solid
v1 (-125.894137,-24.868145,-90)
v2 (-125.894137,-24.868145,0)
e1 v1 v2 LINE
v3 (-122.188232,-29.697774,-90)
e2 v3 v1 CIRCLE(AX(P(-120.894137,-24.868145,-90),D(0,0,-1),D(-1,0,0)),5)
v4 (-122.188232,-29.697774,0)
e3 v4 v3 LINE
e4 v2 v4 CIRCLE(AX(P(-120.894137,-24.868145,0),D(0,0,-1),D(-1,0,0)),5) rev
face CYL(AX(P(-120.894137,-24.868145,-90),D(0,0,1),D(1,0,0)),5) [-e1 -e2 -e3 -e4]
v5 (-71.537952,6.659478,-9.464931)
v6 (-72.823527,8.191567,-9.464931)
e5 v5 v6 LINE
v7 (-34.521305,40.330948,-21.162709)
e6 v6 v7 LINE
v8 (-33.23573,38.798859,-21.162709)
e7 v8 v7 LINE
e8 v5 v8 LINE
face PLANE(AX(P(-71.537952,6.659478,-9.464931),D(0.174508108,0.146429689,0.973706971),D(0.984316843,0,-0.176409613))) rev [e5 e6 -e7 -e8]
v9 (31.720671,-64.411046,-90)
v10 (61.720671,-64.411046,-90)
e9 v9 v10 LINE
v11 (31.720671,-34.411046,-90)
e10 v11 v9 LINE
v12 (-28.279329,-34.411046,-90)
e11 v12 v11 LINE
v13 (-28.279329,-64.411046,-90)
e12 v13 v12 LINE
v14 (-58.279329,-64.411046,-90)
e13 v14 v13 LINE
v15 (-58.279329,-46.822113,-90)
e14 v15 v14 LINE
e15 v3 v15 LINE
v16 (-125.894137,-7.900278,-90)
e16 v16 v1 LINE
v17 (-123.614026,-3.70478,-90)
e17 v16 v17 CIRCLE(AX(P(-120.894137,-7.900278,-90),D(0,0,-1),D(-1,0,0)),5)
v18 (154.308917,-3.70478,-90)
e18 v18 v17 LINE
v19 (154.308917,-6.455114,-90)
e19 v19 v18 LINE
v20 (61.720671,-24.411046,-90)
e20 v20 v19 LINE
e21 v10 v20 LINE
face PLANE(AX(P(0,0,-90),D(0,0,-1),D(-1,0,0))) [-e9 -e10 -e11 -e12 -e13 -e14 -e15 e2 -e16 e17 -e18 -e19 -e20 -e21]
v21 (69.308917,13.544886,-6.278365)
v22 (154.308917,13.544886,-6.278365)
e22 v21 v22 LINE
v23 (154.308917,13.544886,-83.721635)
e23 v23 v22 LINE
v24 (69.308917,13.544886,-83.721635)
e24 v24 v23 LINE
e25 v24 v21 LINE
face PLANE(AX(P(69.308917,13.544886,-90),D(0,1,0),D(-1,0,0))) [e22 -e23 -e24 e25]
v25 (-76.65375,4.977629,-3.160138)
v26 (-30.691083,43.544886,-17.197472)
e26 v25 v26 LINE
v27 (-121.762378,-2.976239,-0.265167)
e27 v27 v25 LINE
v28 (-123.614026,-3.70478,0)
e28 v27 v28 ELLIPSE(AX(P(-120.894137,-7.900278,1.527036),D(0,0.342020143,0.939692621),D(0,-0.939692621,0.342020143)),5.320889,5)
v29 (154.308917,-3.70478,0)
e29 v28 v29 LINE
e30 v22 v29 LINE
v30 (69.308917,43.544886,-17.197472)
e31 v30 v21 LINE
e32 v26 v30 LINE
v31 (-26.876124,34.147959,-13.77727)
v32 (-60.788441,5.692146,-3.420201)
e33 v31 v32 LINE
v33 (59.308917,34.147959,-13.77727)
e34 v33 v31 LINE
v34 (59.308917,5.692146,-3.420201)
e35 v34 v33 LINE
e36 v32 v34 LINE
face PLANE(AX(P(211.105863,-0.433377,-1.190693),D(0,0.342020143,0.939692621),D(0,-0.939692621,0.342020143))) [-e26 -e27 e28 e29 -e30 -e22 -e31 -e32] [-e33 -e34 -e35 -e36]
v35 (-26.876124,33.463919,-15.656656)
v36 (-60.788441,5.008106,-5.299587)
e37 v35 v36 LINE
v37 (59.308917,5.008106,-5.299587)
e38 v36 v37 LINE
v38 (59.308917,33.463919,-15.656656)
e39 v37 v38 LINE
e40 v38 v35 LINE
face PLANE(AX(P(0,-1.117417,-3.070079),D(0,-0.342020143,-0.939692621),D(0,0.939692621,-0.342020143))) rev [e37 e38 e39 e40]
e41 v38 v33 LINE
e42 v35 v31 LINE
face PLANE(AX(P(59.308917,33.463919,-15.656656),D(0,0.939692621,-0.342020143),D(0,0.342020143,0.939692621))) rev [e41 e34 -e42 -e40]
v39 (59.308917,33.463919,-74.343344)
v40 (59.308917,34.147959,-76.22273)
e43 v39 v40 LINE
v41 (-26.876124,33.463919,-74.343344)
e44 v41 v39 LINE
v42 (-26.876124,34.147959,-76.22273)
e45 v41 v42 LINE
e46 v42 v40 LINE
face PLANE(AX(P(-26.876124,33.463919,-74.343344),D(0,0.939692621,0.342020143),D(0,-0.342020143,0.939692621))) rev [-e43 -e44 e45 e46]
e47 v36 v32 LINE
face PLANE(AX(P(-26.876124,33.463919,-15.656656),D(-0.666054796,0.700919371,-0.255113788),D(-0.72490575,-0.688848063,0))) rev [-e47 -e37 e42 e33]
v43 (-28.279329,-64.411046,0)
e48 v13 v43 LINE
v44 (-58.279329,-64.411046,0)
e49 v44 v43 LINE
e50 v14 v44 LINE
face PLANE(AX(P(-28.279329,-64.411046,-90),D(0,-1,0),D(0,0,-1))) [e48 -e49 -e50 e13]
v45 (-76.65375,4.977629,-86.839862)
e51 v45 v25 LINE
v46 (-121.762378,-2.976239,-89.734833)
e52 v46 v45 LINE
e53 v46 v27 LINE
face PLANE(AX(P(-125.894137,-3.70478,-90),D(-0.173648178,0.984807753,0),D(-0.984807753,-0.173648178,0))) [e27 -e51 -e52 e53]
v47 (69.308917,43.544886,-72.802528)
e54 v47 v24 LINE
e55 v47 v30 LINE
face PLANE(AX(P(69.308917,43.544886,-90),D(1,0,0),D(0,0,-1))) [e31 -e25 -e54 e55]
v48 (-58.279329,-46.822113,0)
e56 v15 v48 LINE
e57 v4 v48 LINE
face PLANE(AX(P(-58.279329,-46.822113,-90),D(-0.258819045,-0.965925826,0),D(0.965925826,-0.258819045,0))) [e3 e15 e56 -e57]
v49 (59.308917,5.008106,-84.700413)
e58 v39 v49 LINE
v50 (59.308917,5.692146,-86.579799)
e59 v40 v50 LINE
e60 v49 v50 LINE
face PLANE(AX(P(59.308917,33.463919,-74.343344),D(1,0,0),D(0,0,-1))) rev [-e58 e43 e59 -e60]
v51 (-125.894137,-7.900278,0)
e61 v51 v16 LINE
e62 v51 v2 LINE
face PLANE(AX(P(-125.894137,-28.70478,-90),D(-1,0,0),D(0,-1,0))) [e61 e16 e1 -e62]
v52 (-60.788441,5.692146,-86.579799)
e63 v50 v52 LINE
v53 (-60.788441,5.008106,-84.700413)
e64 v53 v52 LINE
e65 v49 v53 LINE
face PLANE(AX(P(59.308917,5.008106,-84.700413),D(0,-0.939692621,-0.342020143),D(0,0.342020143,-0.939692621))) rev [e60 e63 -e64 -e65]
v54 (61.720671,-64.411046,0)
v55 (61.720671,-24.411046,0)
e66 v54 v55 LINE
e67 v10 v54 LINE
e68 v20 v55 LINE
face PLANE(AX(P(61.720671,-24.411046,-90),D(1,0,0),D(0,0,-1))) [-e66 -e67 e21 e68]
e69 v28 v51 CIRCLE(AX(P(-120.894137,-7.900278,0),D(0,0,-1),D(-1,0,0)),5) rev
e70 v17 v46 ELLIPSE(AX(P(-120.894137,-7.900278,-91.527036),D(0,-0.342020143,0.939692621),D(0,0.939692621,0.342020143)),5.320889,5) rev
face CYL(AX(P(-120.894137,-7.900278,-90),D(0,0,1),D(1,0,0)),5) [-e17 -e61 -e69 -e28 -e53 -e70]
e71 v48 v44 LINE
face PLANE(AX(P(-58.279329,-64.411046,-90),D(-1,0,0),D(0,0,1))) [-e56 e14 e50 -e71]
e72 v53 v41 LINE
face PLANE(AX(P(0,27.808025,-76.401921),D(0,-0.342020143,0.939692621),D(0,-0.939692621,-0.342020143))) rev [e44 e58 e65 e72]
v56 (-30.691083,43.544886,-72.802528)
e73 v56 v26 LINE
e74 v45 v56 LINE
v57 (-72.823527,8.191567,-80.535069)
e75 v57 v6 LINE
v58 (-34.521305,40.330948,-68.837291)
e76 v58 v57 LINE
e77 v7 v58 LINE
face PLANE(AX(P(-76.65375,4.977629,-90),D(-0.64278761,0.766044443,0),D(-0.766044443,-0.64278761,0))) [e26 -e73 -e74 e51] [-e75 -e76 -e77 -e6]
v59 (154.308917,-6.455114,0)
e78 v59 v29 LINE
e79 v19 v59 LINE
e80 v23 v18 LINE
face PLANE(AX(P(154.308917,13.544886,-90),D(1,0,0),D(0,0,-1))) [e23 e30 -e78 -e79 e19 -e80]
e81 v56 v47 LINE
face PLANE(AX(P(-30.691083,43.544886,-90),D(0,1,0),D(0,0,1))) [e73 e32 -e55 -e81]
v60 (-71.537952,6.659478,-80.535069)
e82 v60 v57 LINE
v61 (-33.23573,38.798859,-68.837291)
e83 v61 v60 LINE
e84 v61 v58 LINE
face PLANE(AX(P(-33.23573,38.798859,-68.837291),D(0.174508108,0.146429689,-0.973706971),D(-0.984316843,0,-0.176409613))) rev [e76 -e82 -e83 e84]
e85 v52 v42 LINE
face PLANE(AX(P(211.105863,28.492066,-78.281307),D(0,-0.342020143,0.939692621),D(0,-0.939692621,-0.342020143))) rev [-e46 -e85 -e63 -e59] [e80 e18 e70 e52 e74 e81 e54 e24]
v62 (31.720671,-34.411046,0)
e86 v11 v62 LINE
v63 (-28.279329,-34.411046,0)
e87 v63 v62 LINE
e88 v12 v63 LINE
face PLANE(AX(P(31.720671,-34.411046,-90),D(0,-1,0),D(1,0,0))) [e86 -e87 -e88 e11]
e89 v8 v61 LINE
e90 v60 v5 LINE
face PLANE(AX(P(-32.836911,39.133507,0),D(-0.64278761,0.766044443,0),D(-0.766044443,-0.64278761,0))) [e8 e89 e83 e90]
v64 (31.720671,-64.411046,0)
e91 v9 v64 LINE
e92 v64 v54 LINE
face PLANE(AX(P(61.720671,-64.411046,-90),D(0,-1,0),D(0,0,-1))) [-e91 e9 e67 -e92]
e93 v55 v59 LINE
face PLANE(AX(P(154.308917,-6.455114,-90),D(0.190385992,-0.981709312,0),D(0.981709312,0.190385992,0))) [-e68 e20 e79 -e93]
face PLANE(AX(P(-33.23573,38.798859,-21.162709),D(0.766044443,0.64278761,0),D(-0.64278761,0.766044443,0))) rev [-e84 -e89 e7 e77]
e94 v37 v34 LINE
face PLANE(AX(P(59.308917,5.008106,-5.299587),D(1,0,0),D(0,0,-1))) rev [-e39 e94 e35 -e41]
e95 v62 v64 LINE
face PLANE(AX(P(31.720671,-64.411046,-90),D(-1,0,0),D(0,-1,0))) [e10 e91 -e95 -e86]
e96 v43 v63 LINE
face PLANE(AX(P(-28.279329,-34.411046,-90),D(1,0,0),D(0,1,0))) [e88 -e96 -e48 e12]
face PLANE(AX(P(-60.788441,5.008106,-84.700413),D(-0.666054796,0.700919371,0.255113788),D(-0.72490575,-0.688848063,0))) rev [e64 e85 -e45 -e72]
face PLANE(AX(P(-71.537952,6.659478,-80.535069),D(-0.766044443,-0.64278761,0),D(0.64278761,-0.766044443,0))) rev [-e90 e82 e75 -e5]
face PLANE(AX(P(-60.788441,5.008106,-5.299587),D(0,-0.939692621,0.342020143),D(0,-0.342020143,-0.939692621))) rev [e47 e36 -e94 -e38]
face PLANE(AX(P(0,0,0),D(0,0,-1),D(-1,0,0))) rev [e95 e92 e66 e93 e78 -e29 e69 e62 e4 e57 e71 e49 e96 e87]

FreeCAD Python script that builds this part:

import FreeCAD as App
import Part
import Sketcher

V = App.Vector
Q = App.Units.Quantity


def edges_at(feature, points):
    """Names of the edges that pass closest to the given points."""
    edges = feature.Shape.Edges
    near = lambda p: min(range(len(edges)), key=lambda i: edges[i].distToShape(Part.Vertex(*p))[0])
    return sorted({f"Edge{near(p) + 1}" for p in points})

doc = App.newDocument("Part")
body = doc.addObject("PartDesign::Body", "Body")

# Sketch on XY plane
sketch1 = body.newObject("Sketcher::SketchObject", "Sketch")
sketch1.AttachmentSupport = (doc.getObject("XY_Plane"), [""])
sketch1.MapMode = "FlatFace"
sketch1.addGeometry([
    Part.LineSegment(V(-126, -4, 0), V(-126, -29, 0)),  # 0
    Part.LineSegment(V(-126, -29, 0), V(-58, -47, 0)),  # 1
    Part.LineSegment(V(-58, -47, 0), V(-58, -64, 0)),  # 2
    Part.LineSegment(V(-58, -64, 0), V(-28, -64, 0)),  # 3
    Part.LineSegment(V(-28, -64, 0), V(-28, -34, 0)),  # 4
    Part.LineSegment(V(-28, -34, 0), V(32, -34, 0)),  # 5
    Part.LineSegment(V(32, -34, 0), V(32, -64, 0)),  # 6
    Part.LineSegment(V(32, -64, 0), V(62, -64, 0)),  # 7
    Part.LineSegment(V(62, -64, 0), V(62, -24, 0)),  # 8
    Part.LineSegment(V(62, -24, 0), V(154, -6, 0)),  # 9
    Part.LineSegment(V(154, -6, 0), V(154, 14, 0)),  # 10
    Part.LineSegment(V(154, 14, 0), V(69, 14, 0)),  # 11
    Part.LineSegment(V(69, 14, 0), V(69, 44, 0)),  # 12
    Part.LineSegment(V(69, 44, 0), V(-31, 44, 0)),  # 13
    Part.LineSegment(V(-31, 44, 0), V(-77, 5, 0)),  # 14
    Part.LineSegment(V(-77, 5, 0), V(-126, -4, 0)),  # 15
], False)
sketch1.addConstraint([
    Sketcher.Constraint("Coincident", 0, 2, 1, 1),
    Sketcher.Constraint("Coincident", 1, 2, 2, 1),
    Sketcher.Constraint("Coincident", 2, 2, 3, 1),
    Sketcher.Constraint("Coincident", 3, 2, 4, 1),
    Sketcher.Constraint("Coincident", 4, 2, 5, 1),
    Sketcher.Constraint("Coincident", 5, 2, 6, 1),
    Sketcher.Constraint("Coincident", 6, 2, 7, 1),
    Sketcher.Constraint("Coincident", 7, 2, 8, 1),
    Sketcher.Constraint("Coincident", 8, 2, 9, 1),
    Sketcher.Constraint("Coincident", 9, 2, 10, 1),
    Sketcher.Constraint("Coincident", 10, 2, 11, 1),
    Sketcher.Constraint("Coincident", 11, 2, 12, 1),
    Sketcher.Constraint("Coincident", 12, 2, 13, 1),
    Sketcher.Constraint("Coincident", 13, 2, 14, 1),
    Sketcher.Constraint("Coincident", 14, 2, 15, 1),
    Sketcher.Constraint("Coincident", 15, 2, 0, 1),
    Sketcher.Constraint("Vertical", 0),
    Sketcher.Constraint("Vertical", 2),
    Sketcher.Constraint("Horizontal", 3),
    Sketcher.Constraint("Vertical", 4),
    Sketcher.Constraint("Horizontal", 5),
    Sketcher.Constraint("Vertical", 6),
    Sketcher.Constraint("Horizontal", 7),
    Sketcher.Constraint("Vertical", 8),
    Sketcher.Constraint("Vertical", 10),
    Sketcher.Constraint("Horizontal", 11),
    Sketcher.Constraint("Vertical", 12),
    Sketcher.Constraint("Horizontal", 13),
    Sketcher.Constraint("Horizontal", 3, 2, 6, 2),
    Sketcher.Constraint("Equal", 3, 7),
    Sketcher.Constraint("Equal", 7, 4),
    Sketcher.Constraint("Equal", 6, 12),
    Sketcher.Constraint("DistanceX", 3, 1, 3, 2, 30.0),
    Sketcher.Constraint("DistanceX", 5, 1, 5, 2, 60.0),
    Sketcher.Constraint("DistanceX", 11, 2, 11, 1, 85.0),
    Sketcher.Constraint("DistanceX", 13, 2, 13, 1, 100.0),
    Sketcher.Constraint("DistanceY", 0, 2, 0, 1, 25.0),
    Sketcher.Constraint("DistanceY", 8, 1, 8, 2, 40.0),
    Sketcher.Constraint("DistanceY", 10, 1, 10, 2, 20.0),
    Sketcher.Constraint("Angle", 1, Q("-15 deg")),
    Sketcher.Constraint("Angle", 14, Q("-140 deg")),
    Sketcher.Constraint("Angle", 15, Q("-170 deg")),
    Sketcher.Constraint("Distance", 1, 70.0),
    Sketcher.Constraint("Distance", 14, 60.0),
    Sketcher.Constraint("Distance", 15, 50.0),
    Sketcher.Constraint("Distance", 9, 94.313302),
    Sketcher.Constraint("DistanceY", 0, 2, -1, 1, 28.70478),
    Sketcher.Constraint("DistanceX", 1, 2, -1, 1, 58.279329),
])
pad1 = body.newObject("PartDesign::Pad", "Pad")
pad1.Profile = sketch1
pad1.Length = 90
pad1.Reversed = True

# Sketch on YZ plane
sketch2 = body.newObject("Sketcher::SketchObject", "Sketch001")
sketch2.AttachmentSupport = (doc.getObject("YZ_Plane"), [""])
sketch2.MapMode = "FlatFace"
sketch2.AttachmentOffset = App.Placement(V(0, 0, -125.894137), App.Rotation())
sketch2.addGeometry([
    Part.LineSegment(V(120, -45, 0), V(-4, 0, 0)),  # 0
    Part.LineSegment(V(-4, 0, 0), V(166, 0, 0)),  # 1
    Part.LineSegment(V(166, 0, 0), V(166, -28, 0)),  # 2
    Part.LineSegment(V(166, -28, 0), V(120, -45, 0)),  # 3
    Part.LineSegment(V(-4, -90, 0), V(120, -45, 0)),  # 4
    Part.LineSegment(V(120, -45, 0), V(166, -62, 0)),  # 5
    Part.LineSegment(V(166, -62, 0), V(166, -90, 0)),  # 6
    Part.LineSegment(V(166, -90, 0), V(-4, -90, 0)),  # 7
], False)
sketch2.addConstraint([
    Sketcher.Constraint("Coincident", 0, 2, 1, 1),
    Sketcher.Constraint("Coincident", 1, 2, 2, 1),
    Sketcher.Constraint("Coincident", 2, 2, 3, 1),
    Sketcher.Constraint("Coincident", 3, 2, 0, 1),
    Sketcher.Constraint("Coincident", 4, 2, 5, 1),
    Sketcher.Constraint("Coincident", 5, 2, 6, 1),
    Sketcher.Constraint("Coincident", 6, 2, 7, 1),
    Sketcher.Constraint("Coincident", 7, 2, 4, 1),
    Sketcher.Constraint("Horizontal", 1),
    Sketcher.Constraint("Vertical", 2),
    Sketcher.Constraint("Vertical", 6),
    Sketcher.Constraint("Horizontal", 7),
    Sketcher.Constraint("Coincident", 4, 2, 3, 2),
    Sketcher.Constraint("PointOnObject", 0, 2, -1),
    Sketcher.Constraint("Parallel", 3, 4),
    Sketcher.Constraint("Parallel", 0, 5),
    Sketcher.Constraint("Vertical", 2, 2, 5, 2),
    Sketcher.Constraint("Vertical", 0, 2, 7, 2),
    Sketcher.Constraint("Equal", 2, 6),
    Sketcher.Constraint("Angle", 0, Q("160 deg")),
    Sketcher.Constraint("DistanceY", 3, 2, -1, 1, 45.0),
    Sketcher.Constraint("Distance", 3, 48.600859),
    Sketcher.Constraint("DistanceX", 0, 2, -1, 1, 3.70478),
])
pocket1 = body.newObject("PartDesign::Pocket", "Pocket")
pocket1.Profile = sketch2
pocket1.Length = 337
pocket1.Reversed = True

# Sketch on an angled plane
sketch3 = body.newObject("Sketcher::SketchObject", "Sketch002")
sketch3.Placement = App.Placement(V(0, -0.433377, -1.190693), App.Rotation(V(1, 0, 0), V(0, 0.939692621, -0.342020143), V(0, 0.342020143, 0.939692621), "ZXY"))
sketch3.addGeometry([
    Part.LineSegment(V(-61, 7, 0), V(59, 7, 0)),
    Part.LineSegment(V(59, 7, 0), V(59, 37, 0)),
    Part.LineSegment(V(59, 37, 0), V(-27, 37, 0)),
    Part.LineSegment(V(-27, 37, 0), V(-61, 7, 0)),
], False)
sketch3.addConstraint([
    Sketcher.Constraint("Coincident", 0, 2, 1, 1),
    Sketcher.Constraint("Coincident", 1, 2, 2, 1),
    Sketcher.Constraint("Coincident", 2, 2, 3, 1),
    Sketcher.Constraint("Coincident", 3, 2, 0, 1),
    Sketcher.Constraint("Horizontal", 0),
    Sketcher.Constraint("Vertical", 1),
    Sketcher.Constraint("Horizontal", 2),
    Sketcher.Constraint("DistanceX", 0, 1, 0, 2, 120.097358),
    Sketcher.Constraint("DistanceX", 2, 2, 2, 1, 86.185041),
    Sketcher.Constraint("DistanceY", 1, 1, 1, 2, 30.282044),
    Sketcher.Constraint("DistanceY", -1, 1, 1, 2, 36.80069),
    Sketcher.Constraint("DistanceX", 3, 2, -1, 1, 60.788441),
])
pocket2 = body.newObject("PartDesign::Pocket", "Pocket001")
pocket2.Profile = sketch3
pocket2.Length = 2

# Sketch on an angled plane
sketch4 = body.newObject("Sketcher::SketchObject", "Sketch003")
sketch4.Placement = App.Placement(V(-34.122487, 40.665596, 0), App.Rotation(V(0.766044443, 0.64278761, 0), V(0, 0, -1), V(-0.64278761, 0.766044443, 0), "ZXY"))
sketch4.addGeometry([
    Part.LineSegment(V(-51, 81, 0), V(-51, 9, 0)),
    Part.LineSegment(V(-51, 9, 0), V(-1, 21, 0)),
    Part.LineSegment(V(-1, 21, 0), V(-1, 69, 0)),
    Part.LineSegment(V(-1, 69, 0), V(-51, 81, 0)),
], False)
sketch4.addConstraint([
    Sketcher.Constraint("Coincident", 0, 2, 1, 1),
    Sketcher.Constraint("Coincident", 1, 2, 2, 1),
    Sketcher.Constraint("Coincident", 2, 2, 3, 1),
    Sketcher.Constraint("Coincident", 3, 2, 0, 1),
    Sketcher.Constraint("Vertical", 0),
    Sketcher.Constraint("Vertical", 2),
    Sketcher.Constraint("Equal", 1, 3),
    Sketcher.Constraint("DistanceX", 0, 2, 1, 2, 50.0),
    Sketcher.Constraint("DistanceY", 2, 1, 2, 2, 47.674582),
    Sketcher.Constraint("Distance", 1, 51.350151),
    Sketcher.Constraint("DistanceX", 0, 2, -1, 1, 50.520621),
    Sketcher.Constraint("DistanceY", -1, 1, 0, 2, 9.464931),
])
pocket3 = body.newObject("PartDesign::Pocket", "Pocket002")
pocket3.Profile = sketch4
pocket3.Length = 2

# Sketch on an angled plane
sketch5 = body.newObject("Sketcher::SketchObject", "Sketch004")
sketch5.Placement = App.Placement(V(0, 28.492066, -78.281307), App.Rotation(V(-1, 0, 0), V(0, 0.939692621, 0.342020143), V(0, 0.342020143, -0.939692621), "ZXY"))
sketch5.addGeometry([
    Part.LineSegment(V(61, -24, 0), V(27, 6, 0)),
    Part.LineSegment(V(27, 6, 0), V(-59, 6, 0)),
    Part.LineSegment(V(-59, 6, 0), V(-59, -24, 0)),
    Part.LineSegment(V(-59, -24, 0), V(61, -24, 0)),
], False)
sketch5.addConstraint([
    Sketcher.Constraint("Coincident", 0, 2, 1, 1),
    Sketcher.Constraint("Coincident", 1, 2, 2, 1),
    Sketcher.Constraint("Coincident", 2, 2, 3, 1),
    Sketcher.Constraint("Coincident", 3, 2, 0, 1),
    Sketcher.Constraint("Horizontal", 1),
    Sketcher.Constraint("Vertical", 2),
    Sketcher.Constraint("Horizontal", 3),
    Sketcher.Constraint("DistanceX", 1, 2, 1, 1, 86.185041),
    Sketcher.Constraint("DistanceX", 3, 1, 3, 2, 120.097358),
    Sketcher.Constraint("DistanceY", 2, 2, 2, 1, 30.282044),
    Sketcher.Constraint("DistanceX", -1, 1, 3, 2, 60.788441),
    Sketcher.Constraint("DistanceY", -1, 1, 0, 2, 6.018877),
])
pocket4 = body.newObject("PartDesign::Pocket", "Pocket003")
pocket4.Profile = sketch5
pocket4.Length = 2
doc.recompute()

fillet = body.newObject("PartDesign::Fillet", "Fillet")
fillet.Base = (pocket4, edges_at(pocket4, [(-125.894, -28.705, -45), (-125.894, -3.705, -45)]))
fillet.Radius = 5

doc.recompute()
